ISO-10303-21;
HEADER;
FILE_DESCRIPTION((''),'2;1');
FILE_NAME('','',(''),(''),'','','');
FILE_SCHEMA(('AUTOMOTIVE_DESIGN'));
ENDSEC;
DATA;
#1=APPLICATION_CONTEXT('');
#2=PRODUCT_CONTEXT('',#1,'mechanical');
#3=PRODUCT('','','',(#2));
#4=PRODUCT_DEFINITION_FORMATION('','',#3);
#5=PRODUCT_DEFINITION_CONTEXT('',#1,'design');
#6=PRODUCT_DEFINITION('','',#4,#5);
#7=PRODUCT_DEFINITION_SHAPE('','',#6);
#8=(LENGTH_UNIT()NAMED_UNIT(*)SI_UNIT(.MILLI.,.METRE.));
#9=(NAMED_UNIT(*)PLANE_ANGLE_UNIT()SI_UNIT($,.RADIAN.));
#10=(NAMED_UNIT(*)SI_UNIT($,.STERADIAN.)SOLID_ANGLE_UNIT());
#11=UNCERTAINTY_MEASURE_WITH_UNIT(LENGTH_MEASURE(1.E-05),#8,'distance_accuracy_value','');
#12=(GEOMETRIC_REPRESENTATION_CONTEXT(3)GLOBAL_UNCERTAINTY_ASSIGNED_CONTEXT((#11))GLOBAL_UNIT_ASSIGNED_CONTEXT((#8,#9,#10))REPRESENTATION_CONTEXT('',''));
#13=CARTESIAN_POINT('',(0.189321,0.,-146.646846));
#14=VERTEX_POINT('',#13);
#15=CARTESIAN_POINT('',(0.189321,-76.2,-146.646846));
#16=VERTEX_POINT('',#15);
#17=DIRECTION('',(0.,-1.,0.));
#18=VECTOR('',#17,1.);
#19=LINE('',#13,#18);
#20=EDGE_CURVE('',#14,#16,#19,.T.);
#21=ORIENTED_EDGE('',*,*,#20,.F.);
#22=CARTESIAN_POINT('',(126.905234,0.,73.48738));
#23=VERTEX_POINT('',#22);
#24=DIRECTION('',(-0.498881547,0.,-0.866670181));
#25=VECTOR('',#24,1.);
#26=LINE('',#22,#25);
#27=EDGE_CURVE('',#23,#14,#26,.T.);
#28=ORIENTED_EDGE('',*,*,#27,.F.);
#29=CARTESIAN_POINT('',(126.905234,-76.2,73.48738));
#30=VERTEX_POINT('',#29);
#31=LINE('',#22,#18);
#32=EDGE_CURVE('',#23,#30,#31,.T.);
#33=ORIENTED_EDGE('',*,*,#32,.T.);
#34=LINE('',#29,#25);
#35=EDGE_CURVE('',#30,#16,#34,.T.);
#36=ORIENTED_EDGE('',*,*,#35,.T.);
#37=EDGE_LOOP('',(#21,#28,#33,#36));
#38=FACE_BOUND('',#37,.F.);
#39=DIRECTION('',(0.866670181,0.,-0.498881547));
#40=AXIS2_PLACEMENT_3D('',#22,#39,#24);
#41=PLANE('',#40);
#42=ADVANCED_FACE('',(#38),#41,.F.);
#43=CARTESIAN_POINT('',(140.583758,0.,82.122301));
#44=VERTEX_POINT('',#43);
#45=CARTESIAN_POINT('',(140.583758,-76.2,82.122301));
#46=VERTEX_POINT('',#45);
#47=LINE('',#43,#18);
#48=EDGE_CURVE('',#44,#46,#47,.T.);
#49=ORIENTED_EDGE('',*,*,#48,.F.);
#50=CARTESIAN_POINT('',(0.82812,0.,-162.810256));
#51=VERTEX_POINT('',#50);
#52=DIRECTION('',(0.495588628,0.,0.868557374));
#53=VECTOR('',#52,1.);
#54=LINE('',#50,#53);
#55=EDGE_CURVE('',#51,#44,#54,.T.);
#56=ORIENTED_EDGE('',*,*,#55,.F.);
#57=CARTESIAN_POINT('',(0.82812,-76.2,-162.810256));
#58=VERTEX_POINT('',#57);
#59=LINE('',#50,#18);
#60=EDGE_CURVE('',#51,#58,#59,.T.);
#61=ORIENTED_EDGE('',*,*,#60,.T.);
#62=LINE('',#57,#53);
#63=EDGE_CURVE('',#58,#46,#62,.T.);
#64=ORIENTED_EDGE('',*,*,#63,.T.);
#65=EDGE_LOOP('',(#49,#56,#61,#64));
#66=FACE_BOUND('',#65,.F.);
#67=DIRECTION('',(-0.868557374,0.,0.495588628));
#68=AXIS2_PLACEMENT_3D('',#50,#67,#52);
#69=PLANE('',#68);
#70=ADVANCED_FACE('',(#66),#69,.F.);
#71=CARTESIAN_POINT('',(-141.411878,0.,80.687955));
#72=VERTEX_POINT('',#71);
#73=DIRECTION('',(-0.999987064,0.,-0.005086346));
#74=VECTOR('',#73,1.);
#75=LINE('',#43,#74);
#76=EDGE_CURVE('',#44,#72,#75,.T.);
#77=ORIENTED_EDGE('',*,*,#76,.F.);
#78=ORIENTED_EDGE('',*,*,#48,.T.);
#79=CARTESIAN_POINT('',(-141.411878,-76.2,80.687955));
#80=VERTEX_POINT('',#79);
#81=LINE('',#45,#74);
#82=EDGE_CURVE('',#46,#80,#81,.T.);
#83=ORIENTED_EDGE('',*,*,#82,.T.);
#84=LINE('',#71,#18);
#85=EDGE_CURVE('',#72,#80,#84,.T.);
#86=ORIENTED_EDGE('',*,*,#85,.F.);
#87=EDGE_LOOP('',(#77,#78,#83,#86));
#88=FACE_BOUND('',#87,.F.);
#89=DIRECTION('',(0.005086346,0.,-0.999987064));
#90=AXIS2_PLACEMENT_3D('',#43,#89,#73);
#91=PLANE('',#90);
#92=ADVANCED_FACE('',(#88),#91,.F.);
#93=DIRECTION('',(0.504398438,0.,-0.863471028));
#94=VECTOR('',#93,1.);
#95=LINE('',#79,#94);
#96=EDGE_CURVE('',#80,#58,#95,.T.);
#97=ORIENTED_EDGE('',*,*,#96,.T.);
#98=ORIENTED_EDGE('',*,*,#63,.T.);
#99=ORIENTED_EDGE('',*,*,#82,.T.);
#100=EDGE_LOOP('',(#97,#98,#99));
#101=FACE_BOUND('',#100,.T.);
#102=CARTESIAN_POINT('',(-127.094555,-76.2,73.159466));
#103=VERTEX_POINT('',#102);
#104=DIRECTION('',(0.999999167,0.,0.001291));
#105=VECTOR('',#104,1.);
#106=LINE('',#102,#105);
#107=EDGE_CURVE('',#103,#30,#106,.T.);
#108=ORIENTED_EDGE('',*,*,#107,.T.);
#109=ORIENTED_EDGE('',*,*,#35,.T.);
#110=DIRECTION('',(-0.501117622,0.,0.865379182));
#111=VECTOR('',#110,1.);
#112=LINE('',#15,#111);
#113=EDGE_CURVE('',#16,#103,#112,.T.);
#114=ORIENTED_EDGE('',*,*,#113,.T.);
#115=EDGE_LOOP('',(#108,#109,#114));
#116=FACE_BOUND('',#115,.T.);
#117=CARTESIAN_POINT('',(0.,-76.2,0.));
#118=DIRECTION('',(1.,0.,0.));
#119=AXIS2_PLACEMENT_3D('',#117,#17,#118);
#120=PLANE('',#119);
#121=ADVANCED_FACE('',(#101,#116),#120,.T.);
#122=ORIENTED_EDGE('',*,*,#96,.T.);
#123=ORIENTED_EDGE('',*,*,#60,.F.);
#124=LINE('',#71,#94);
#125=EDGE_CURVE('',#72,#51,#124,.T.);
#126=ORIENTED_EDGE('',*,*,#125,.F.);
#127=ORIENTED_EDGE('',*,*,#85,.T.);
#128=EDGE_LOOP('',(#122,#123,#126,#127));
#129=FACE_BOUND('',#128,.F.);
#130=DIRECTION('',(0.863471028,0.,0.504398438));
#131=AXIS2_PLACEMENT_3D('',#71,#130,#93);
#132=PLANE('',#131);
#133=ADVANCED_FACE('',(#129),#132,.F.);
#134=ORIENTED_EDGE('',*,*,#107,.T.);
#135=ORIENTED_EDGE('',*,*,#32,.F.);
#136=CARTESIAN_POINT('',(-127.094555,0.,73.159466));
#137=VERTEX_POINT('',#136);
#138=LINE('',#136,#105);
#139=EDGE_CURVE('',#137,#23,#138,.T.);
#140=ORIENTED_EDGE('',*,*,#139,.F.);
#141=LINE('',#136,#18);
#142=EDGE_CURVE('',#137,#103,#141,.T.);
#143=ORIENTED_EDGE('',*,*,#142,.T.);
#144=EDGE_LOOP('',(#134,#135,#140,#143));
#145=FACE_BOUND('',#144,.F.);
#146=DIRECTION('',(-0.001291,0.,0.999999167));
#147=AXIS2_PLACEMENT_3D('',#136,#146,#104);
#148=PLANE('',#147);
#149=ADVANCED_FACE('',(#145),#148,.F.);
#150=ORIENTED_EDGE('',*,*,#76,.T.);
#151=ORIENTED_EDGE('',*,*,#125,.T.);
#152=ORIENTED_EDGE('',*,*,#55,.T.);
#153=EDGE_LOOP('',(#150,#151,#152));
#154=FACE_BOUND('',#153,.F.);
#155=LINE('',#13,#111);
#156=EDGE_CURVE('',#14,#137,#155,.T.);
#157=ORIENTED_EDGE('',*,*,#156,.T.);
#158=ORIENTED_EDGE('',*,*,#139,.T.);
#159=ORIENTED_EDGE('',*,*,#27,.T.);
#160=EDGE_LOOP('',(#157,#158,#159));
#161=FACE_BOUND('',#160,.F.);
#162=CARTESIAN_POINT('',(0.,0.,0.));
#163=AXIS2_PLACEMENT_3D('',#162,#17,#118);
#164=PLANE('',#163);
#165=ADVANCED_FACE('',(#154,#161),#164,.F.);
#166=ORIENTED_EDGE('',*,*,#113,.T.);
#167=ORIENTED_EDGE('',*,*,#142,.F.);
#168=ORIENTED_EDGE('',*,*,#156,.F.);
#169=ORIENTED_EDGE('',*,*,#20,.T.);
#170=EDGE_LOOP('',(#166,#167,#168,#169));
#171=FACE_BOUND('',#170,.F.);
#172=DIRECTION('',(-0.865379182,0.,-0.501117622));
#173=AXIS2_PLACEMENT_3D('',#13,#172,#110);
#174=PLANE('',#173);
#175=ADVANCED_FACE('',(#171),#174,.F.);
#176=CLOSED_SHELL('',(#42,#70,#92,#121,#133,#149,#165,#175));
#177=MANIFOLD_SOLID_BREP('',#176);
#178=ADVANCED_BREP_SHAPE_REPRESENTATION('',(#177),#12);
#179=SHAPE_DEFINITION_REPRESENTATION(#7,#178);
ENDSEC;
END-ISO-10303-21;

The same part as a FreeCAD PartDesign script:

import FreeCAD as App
import Part
import Sketcher
Q = App.Units.Quantity


def add_polygon(sketch, points):
    """Adds a closed chain of lines whose ends are joined by coincident constraints."""
    first, n = sketch.GeometryCount, len(points)
    for a, b in zip(points, points[1:] + points[:1]):
        sketch.addGeometry(Part.LineSegment(App.Vector(*a, 0), App.Vector(*b, 0)), False)
    for i in range(n):
        sketch.addConstraint(Sketcher.Constraint("Coincident", first + i, 2, first + (i + 1) % n, 1))

doc = App.newDocument("Part")
body = doc.addObject("PartDesign::Body", "Body")

# Sketch on XZ plane
sketch1 = body.newObject("Sketcher::SketchObject", "Sketch")
sketch1.AttachmentSupport = (doc.getObject("XZ_Plane"), [""])
sketch1.MapMode = "FlatFace"
add_polygon(sketch1, [(1, -163), (141, 82), (-141, 81)])  # lines 0-2
add_polygon(sketch1, [(0, -147), (-127, 73), (127, 73)])  # lines 3-5
sketch1.addConstraint([
    Sketcher.Constraint("Equal", 0, 1),
    Sketcher.Constraint("Equal", 1, 2),
    Sketcher.Constraint("Equal", 3, 4),
    Sketcher.Constraint("Equal", 4, 5),
    Sketcher.Constraint("Distance", 3, Q("10 in")),
    Sketcher.Constraint("DistanceX", 1, 2, 2, 2, Q("5.5999999 in")),
    Sketcher.Constraint("DistanceY", -1, 1, 0, 2, 82.122301),
    Sketcher.Constraint("DistanceX", 5, 2, 2, 2, 0.638799),
    Sketcher.Constraint("DistanceY", 5, 2, 1, 2, 227.334801),
    Sketcher.Constraint("DistanceX", 1, 2, -1, 1, 141.411878),
    Sketcher.Constraint("DistanceY", -1, 1, 4, 2, 73.48738),
    Sketcher.Constraint("DistanceY", 2, 2, 1, 2, 243.498211),
])
pad1 = body.newObject("PartDesign::Pad", "Pad")
pad1.Profile = sketch1
pad1.Length = Q("3 in")

doc.recompute()
